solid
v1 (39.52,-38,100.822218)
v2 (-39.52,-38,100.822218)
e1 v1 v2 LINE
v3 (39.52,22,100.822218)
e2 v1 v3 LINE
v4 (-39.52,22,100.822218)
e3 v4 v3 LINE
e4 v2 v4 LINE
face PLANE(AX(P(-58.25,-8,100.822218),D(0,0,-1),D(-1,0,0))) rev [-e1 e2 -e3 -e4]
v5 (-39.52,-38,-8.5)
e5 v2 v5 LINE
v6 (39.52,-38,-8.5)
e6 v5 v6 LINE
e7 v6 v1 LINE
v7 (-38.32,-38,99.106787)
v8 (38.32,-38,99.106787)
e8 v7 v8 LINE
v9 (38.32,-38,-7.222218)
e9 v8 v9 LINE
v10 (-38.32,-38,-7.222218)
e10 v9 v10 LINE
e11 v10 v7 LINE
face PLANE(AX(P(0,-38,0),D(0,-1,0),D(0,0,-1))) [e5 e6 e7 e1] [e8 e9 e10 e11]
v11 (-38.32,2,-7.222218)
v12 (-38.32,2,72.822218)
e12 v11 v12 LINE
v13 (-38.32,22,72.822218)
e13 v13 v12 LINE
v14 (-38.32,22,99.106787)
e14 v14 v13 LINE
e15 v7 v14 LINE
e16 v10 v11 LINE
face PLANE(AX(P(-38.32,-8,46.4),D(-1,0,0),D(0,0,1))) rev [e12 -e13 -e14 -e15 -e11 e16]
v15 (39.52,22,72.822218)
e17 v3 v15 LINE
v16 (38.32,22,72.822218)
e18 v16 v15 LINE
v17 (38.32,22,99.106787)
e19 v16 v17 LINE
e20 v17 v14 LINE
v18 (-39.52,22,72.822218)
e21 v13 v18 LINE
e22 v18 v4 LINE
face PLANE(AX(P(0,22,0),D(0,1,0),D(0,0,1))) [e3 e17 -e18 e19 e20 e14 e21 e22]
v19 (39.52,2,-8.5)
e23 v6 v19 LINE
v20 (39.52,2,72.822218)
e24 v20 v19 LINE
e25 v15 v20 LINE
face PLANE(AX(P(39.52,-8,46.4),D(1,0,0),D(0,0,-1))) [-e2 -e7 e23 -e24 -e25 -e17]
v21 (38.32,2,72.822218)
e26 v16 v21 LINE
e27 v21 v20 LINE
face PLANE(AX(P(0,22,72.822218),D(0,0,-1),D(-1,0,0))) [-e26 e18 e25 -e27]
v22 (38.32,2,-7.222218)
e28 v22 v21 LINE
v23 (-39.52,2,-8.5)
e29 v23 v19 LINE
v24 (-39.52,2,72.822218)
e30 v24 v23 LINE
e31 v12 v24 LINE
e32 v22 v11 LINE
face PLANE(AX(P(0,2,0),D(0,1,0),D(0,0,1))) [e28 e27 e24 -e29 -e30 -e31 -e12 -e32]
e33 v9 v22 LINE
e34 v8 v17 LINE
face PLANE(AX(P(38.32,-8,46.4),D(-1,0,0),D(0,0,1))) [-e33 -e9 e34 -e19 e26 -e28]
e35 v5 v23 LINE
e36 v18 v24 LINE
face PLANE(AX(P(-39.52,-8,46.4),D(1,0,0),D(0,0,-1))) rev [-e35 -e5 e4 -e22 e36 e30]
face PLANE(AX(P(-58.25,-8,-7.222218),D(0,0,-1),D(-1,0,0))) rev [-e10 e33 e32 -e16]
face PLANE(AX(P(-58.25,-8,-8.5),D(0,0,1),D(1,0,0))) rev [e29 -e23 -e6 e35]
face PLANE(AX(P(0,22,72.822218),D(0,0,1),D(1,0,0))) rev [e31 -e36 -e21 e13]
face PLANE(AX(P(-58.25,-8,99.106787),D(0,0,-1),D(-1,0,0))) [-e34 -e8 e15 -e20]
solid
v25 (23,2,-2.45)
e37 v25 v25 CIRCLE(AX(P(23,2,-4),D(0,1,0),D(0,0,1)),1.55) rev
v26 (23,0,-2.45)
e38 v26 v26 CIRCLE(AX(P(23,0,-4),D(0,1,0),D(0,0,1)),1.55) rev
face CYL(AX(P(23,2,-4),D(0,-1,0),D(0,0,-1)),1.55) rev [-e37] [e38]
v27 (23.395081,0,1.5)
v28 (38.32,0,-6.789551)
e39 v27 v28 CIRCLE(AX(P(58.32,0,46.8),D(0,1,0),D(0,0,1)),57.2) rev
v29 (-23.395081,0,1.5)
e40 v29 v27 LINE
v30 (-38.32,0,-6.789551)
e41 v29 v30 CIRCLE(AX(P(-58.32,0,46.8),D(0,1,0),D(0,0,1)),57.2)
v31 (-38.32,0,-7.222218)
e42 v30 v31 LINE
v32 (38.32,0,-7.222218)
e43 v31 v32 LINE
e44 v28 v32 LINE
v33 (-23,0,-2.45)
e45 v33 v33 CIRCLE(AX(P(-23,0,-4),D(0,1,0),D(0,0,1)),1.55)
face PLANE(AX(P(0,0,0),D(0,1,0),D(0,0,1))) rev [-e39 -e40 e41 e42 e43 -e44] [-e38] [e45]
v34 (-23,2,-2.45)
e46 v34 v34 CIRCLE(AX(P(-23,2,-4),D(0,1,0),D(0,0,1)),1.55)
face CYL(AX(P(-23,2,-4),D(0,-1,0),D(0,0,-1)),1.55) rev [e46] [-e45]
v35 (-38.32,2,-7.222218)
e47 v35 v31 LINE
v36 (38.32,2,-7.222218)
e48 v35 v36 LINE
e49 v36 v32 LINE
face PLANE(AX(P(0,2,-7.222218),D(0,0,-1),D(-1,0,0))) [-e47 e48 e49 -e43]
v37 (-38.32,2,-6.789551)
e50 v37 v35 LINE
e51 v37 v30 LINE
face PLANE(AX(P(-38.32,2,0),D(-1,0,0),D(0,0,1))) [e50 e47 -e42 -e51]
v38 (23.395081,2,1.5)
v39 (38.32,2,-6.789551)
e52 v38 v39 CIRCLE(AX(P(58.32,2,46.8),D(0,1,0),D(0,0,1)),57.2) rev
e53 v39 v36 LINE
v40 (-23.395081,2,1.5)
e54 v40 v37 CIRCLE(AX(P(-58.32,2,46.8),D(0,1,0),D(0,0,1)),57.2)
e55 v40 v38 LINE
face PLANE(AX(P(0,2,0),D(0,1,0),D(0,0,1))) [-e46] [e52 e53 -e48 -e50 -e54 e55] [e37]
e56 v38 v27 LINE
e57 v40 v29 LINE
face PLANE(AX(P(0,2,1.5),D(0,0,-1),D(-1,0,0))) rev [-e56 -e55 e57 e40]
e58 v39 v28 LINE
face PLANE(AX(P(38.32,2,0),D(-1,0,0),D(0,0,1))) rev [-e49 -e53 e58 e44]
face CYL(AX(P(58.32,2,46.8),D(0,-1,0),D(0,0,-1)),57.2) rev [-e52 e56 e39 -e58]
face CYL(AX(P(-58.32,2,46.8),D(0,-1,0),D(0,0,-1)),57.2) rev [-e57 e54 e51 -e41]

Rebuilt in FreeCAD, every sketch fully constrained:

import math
import FreeCAD as App
import Part
import Sketcher
from FreeCAD import Vector
Q = App.Units.Quantity

doc = App.newDocument("Part")
body = doc.addObject("PartDesign::Body", "Body")

sketch1 = body.newObject("Sketcher::SketchObject", "Sketch")
sketch1.AttachmentSupport = (doc.getObject("XZ_Plane"), [""])
sketch1.MapMode = "FlatFace"
sketch1.addGeometry([
    Part.ArcOfCircle(Part.Circle(Vector(-58.32, 46.8, 0), Vector(0, 0, 1), 57.2), math.radians(-69.53), math.radians(-52.37)),
    Part.LineSegment(Vector(-23.4, 1.5, 0), Vector(23.4, 1.5, 0)),
    Part.ArcOfCircle(Part.Circle(Vector(58.32, 46.8, 0), Vector(0, 0, 1), 57.2), math.radians(-127.63), math.radians(-110.47)),
    Part.LineSegment(Vector(38.32, -6.79, 0), Vector(38.32, -7.22, 0)),
    Part.LineSegment(Vector(38.32, -7.22, 0), Vector(-38.32, -7.22, 0)),
    Part.LineSegment(Vector(-38.32, -7.22, 0), Vector(-38.32, -6.79, 0)),
    Part.Circle(Vector(-23, -4, 0), Vector(0, 0, 1), 1.55),
    Part.Circle(Vector(23, -4, 0), Vector(0, 0, 1), 1.55),
], False)
sketch1.addConstraint([
    Sketcher.Constraint("Coincident", 0, 2, 1, 1),
    Sketcher.Constraint("Coincident", 1, 2, 2, 1),
    Sketcher.Constraint("Coincident", 2, 2, 3, 1),
    Sketcher.Constraint("Coincident", 3, 2, 4, 1),
    Sketcher.Constraint("Coincident", 4, 2, 5, 1),
    Sketcher.Constraint("Coincident", 5, 2, 0, 1),
    Sketcher.Constraint("Horizontal", 1),
    Sketcher.Constraint("Vertical", 3),
    Sketcher.Constraint("Horizontal", 4),
    Sketcher.Constraint("Vertical", 5),
    Sketcher.Constraint("Equal", 0, 2),
    Sketcher.Constraint("Equal", 6, 7),
    Sketcher.Constraint("Symmetric", 0, 3, 2, 3, -2),
    Sketcher.Constraint("Symmetric", 6, 3, 7, 3, -2),
    Sketcher.Constraint("Horizontal", 2, 2, 5, 2),
    Sketcher.Constraint("Diameter", 6, Q("3.1 mm")),
    Sketcher.Constraint("Radius", 0, Q("57.2 mm")),
    Sketcher.Constraint("DistanceX", 6, 3, -1, 1, Q("23 mm")),
    Sketcher.Constraint("DistanceY", 6, 3, -1, 1, Q("4 mm")),
    Sketcher.Constraint("DistanceX", 2, 2, 2, 3, Q("20 mm")),
    Sketcher.Constraint("DistanceX", 4, 2, 4, 1, Q("76.64 mm")),
    Sketcher.Constraint("DistanceY", -1, 1, 0, 3, Q("46.8 mm")),
    Sketcher.Constraint("DistanceY", -1, 1, 0, 2, Q("1.5 mm")),
    Sketcher.Constraint("DistanceY", 3, 2, 3, 1, Q("0.432666 mm")),
])
pad1 = body.newObject("PartDesign::Pad", "Pad")
pad1.Profile = sketch1
pad1.Length = 2
pad1.Reversed = True
body2 = doc.addObject("PartDesign::Body", "Body001")

sketch2 = body2.newObject("Sketcher::SketchObject", "Sketch001")
sketch2.AttachmentSupport = (doc.getObject("XZ_Plane001"), [""])
sketch2.MapMode = "FlatFace"
sketch2.AttachmentOffset = App.Placement(Vector(0, 0, -2), App.Rotation())
sketch2.addGeometry([
    Part.LineSegment(Vector(-40, -8, 0), Vector(-40, 101, 0)),
    Part.LineSegment(Vector(-40, 101, 0), Vector(40, 101, 0)),
    Part.LineSegment(Vector(40, 101, 0), Vector(40, -8, 0)),
    Part.LineSegment(Vector(40, -8, 0), Vector(-40, -8, 0)),
    Part.LineSegment(Vector(-38, 99, 0), Vector(-38, -7, 0)),
    Part.LineSegment(Vector(-38, -7, 0), Vector(38, -7, 0)),
    Part.LineSegment(Vector(38, -7, 0), Vector(38, 99, 0)),
    Part.LineSegment(Vector(38, 99, 0), Vector(-38, 99, 0)),
], False)
sketch2.addConstraint([
    Sketcher.Constraint("Coincident", 0, 2, 1, 1),
    Sketcher.Constraint("Coincident", 1, 2, 2, 1),
    Sketcher.Constraint("Coincident", 2, 2, 3, 1),
    Sketcher.Constraint("Coincident", 3, 2, 0, 1),
    Sketcher.Constraint("Coincident", 4, 2, 5, 1),
    Sketcher.Constraint("Coincident", 5, 2, 6, 1),
    Sketcher.Constraint("Coincident", 6, 2, 7, 1),
    Sketcher.Constraint("Coincident", 7, 2, 4, 1),
    Sketcher.Constraint("Vertical", 0),
    Sketcher.Constraint("Horizontal", 1),
    Sketcher.Constraint("Vertical", 2),
    Sketcher.Constraint("Horizontal", 3),
    Sketcher.Constraint("Vertical", 4),
    Sketcher.Constraint("Horizontal", 5),
    Sketcher.Constraint("Vertical", 6),
    Sketcher.Constraint("Horizontal", 7),
    Sketcher.Constraint("DistanceX", 1, 1, 1, 2, Q("79.04 mm")),
    Sketcher.Constraint("DistanceX", 5, 1, 5, 2, Q("76.64 mm")),
    Sketcher.Constraint("DistanceY", 2, 2, -1, 1, Q("8.5 mm")),
    Sketcher.Constraint("DistanceX", 3, 2, 4, 2, Q("1.2 mm")),
    Sketcher.Constraint("DistanceX", 0, 2, -1, 1, Q("39.52 mm")),
    Sketcher.Constraint("DistanceY", 0, 1, 0, 2, Q("109.322218 mm")),
    Sketcher.Constraint("DistanceY", 4, 2, 4, 1, Q("106.329005 mm")),
    Sketcher.Constraint("DistanceY", 6, 2, 1, 2, Q("1.71543 mm")),
])
pad2 = body2.newObject("PartDesign::Pad", "Pad001")
pad2.Profile = sketch2
pad2.Length = 10

sketch3 = body2.newObject("Sketcher::SketchObject", "Sketch002")
sketch3.AttachmentSupport = (doc.getObject("XZ_Plane001"), [""])
sketch3.MapMode = "FlatFace"
sketch3.AttachmentOffset = App.Placement(Vector(0, 0, -22), App.Rotation())
sketch3.addGeometry([
    Part.LineSegment(Vector(-39.5, 100.8, 0), Vector(-39.5, 72.8, 0)),
    Part.LineSegment(Vector(-39.5, 72.8, 0), Vector(-38.3, 72.8, 0)),
    Part.LineSegment(Vector(-38.3, 72.8, 0), Vector(-38.3, 99.1, 0)),
    Part.LineSegment(Vector(-38.3, 99.1, 0), Vector(38.3, 99.1, 0)),
    Part.LineSegment(Vector(38.3, 99.1, 0), Vector(38.3, 72.8, 0)),
    Part.LineSegment(Vector(38.3, 72.8, 0), Vector(39.5, 72.8, 0)),
    Part.LineSegment(Vector(39.5, 72.8, 0), Vector(39.5, 100.8, 0)),
    Part.LineSegment(Vector(39.5, 100.8, 0), Vector(-39.5, 100.8, 0)),
], False)
sketch3.addConstraint([
    Sketcher.Constraint("Coincident", 0, 2, 1, 1),
    Sketcher.Constraint("Coincident", 1, 2, 2, 1),
    Sketcher.Constraint("Coincident", 2, 2, 3, 1),
    Sketcher.Constraint("Coincident", 3, 2, 4, 1),
    Sketcher.Constraint("Coincident", 4, 2, 5, 1),
    Sketcher.Constraint("Coincident", 5, 2, 6, 1),
    Sketcher.Constraint("Coincident", 6, 2, 7, 1),
    Sketcher.Constraint("Coincident", 7, 2, 0, 1),
    Sketcher.Constraint("Vertical", 0),
    Sketcher.Constraint("Horizontal", 1),
    Sketcher.Constraint("Vertical", 2),
    Sketcher.Constraint("Horizontal", 3),
    Sketcher.Constraint("Vertical", 4),
    Sketcher.Constraint("Horizontal", 5),
    Sketcher.Constraint("Vertical", 6),
    Sketcher.Constraint("Horizontal", 7),
    Sketcher.Constraint("Symmetric", 1, 2, 4, 2, -2),
    Sketcher.Constraint("Equal", 1, 5),
    Sketcher.Constraint("DistanceY", 0, 2, 0, 1, Q("28 mm")),
    Sketcher.Constraint("DistanceX", 1, 1, 1, 2, Q("1.2 mm")),
    Sketcher.Constraint("DistanceX", 3, 1, 3, 2, Q("76.64 mm")),
    Sketcher.Constraint("DistanceY", 2, 1, 2, 2, Q("26.28457 mm")),
    Sketcher.Constraint("DistanceY", -1, 1, 0, 2, Q("72.822218 mm")),
])
pad3 = body2.newObject("PartDesign::Pad", "Pad002")
pad3.Profile = sketch3
pad3.Length = 20

sketch4 = body2.newObject("Sketcher::SketchObject", "Sketch003")
sketch4.AttachmentSupport = (doc.getObject("XZ_Plane001"), [""])
sketch4.MapMode = "FlatFace"
sketch4.AttachmentOffset = App.Placement(Vector(0, 0, 8), App.Rotation())
sketch4.addGeometry([
    Part.LineSegment(Vector(-40, 101, 0), Vector(-40, -8, 0)),
    Part.LineSegment(Vector(-40, -8, 0), Vector(40, -8, 0)),
    Part.LineSegment(Vector(40, -8, 0), Vector(40, 101, 0)),
    Part.LineSegment(Vector(40, 101, 0), Vector(-40, 101, 0)),
    Part.LineSegment(Vector(38, -7, 0), Vector(-38, -7, 0)),
    Part.LineSegment(Vector(-38, -7, 0), Vector(-38, 99, 0)),
    Part.LineSegment(Vector(-38, 99, 0), Vector(38, 99, 0)),
    Part.LineSegment(Vector(38, 99, 0), Vector(38, -7, 0)),
], False)
sketch4.addConstraint([
    Sketcher.Constraint("Coincident", 0, 2, 1, 1),
    Sketcher.Constraint("Coincident", 1, 2, 2, 1),
    Sketcher.Constraint("Coincident", 2, 2, 3, 1),
    Sketcher.Constraint("Coincident", 3, 2, 0, 1),
    Sketcher.Constraint("Coincident", 4, 2, 5, 1),
    Sketcher.Constraint("Coincident", 5, 2, 6, 1),
    Sketcher.Constraint("Coincident", 6, 2, 7, 1),
    Sketcher.Constraint("Coincident", 7, 2, 4, 1),
    Sketcher.Constraint("Vertical", 0),
    Sketcher.Constraint("Horizontal", 1),
    Sketcher.Constraint("Vertical", 2),
    Sketcher.Constraint("Horizontal", 3),
    Sketcher.Constraint("Horizontal", 4),
    Sketcher.Constraint("Vertical", 5),
    Sketcher.Constraint("Horizontal", 6),
    Sketcher.Constraint("Vertical", 7),
    Sketcher.Constraint("DistanceX", 1, 1, 1, 2, Q("79.04 mm")),
    Sketcher.Constraint("DistanceX", 4, 2, 4, 1, Q("76.64 mm")),
    Sketcher.Constraint("DistanceY", 0, 2, -1, 1, Q("8.5 mm")),
    Sketcher.Constraint("DistanceX", 0, 2, 4, 2, Q("1.2 mm")),
    Sketcher.Constraint("DistanceX", 0, 2, -1, 1, Q("39.52 mm")),
    Sketcher.Constraint("DistanceY", 0, 2, 0, 1, Q("109.322218 mm")),
    Sketcher.Constraint("DistanceY", 5, 1, 5, 2, Q("106.329005 mm")),
    Sketcher.Constraint("DistanceY", 5, 2, 3, 2, Q("1.71543 mm")),
])
pad4 = body2.newObject("PartDesign::Pad", "Pad003")
pad4.Profile = sketch4
pad4.Length = 30

doc.recompute()
